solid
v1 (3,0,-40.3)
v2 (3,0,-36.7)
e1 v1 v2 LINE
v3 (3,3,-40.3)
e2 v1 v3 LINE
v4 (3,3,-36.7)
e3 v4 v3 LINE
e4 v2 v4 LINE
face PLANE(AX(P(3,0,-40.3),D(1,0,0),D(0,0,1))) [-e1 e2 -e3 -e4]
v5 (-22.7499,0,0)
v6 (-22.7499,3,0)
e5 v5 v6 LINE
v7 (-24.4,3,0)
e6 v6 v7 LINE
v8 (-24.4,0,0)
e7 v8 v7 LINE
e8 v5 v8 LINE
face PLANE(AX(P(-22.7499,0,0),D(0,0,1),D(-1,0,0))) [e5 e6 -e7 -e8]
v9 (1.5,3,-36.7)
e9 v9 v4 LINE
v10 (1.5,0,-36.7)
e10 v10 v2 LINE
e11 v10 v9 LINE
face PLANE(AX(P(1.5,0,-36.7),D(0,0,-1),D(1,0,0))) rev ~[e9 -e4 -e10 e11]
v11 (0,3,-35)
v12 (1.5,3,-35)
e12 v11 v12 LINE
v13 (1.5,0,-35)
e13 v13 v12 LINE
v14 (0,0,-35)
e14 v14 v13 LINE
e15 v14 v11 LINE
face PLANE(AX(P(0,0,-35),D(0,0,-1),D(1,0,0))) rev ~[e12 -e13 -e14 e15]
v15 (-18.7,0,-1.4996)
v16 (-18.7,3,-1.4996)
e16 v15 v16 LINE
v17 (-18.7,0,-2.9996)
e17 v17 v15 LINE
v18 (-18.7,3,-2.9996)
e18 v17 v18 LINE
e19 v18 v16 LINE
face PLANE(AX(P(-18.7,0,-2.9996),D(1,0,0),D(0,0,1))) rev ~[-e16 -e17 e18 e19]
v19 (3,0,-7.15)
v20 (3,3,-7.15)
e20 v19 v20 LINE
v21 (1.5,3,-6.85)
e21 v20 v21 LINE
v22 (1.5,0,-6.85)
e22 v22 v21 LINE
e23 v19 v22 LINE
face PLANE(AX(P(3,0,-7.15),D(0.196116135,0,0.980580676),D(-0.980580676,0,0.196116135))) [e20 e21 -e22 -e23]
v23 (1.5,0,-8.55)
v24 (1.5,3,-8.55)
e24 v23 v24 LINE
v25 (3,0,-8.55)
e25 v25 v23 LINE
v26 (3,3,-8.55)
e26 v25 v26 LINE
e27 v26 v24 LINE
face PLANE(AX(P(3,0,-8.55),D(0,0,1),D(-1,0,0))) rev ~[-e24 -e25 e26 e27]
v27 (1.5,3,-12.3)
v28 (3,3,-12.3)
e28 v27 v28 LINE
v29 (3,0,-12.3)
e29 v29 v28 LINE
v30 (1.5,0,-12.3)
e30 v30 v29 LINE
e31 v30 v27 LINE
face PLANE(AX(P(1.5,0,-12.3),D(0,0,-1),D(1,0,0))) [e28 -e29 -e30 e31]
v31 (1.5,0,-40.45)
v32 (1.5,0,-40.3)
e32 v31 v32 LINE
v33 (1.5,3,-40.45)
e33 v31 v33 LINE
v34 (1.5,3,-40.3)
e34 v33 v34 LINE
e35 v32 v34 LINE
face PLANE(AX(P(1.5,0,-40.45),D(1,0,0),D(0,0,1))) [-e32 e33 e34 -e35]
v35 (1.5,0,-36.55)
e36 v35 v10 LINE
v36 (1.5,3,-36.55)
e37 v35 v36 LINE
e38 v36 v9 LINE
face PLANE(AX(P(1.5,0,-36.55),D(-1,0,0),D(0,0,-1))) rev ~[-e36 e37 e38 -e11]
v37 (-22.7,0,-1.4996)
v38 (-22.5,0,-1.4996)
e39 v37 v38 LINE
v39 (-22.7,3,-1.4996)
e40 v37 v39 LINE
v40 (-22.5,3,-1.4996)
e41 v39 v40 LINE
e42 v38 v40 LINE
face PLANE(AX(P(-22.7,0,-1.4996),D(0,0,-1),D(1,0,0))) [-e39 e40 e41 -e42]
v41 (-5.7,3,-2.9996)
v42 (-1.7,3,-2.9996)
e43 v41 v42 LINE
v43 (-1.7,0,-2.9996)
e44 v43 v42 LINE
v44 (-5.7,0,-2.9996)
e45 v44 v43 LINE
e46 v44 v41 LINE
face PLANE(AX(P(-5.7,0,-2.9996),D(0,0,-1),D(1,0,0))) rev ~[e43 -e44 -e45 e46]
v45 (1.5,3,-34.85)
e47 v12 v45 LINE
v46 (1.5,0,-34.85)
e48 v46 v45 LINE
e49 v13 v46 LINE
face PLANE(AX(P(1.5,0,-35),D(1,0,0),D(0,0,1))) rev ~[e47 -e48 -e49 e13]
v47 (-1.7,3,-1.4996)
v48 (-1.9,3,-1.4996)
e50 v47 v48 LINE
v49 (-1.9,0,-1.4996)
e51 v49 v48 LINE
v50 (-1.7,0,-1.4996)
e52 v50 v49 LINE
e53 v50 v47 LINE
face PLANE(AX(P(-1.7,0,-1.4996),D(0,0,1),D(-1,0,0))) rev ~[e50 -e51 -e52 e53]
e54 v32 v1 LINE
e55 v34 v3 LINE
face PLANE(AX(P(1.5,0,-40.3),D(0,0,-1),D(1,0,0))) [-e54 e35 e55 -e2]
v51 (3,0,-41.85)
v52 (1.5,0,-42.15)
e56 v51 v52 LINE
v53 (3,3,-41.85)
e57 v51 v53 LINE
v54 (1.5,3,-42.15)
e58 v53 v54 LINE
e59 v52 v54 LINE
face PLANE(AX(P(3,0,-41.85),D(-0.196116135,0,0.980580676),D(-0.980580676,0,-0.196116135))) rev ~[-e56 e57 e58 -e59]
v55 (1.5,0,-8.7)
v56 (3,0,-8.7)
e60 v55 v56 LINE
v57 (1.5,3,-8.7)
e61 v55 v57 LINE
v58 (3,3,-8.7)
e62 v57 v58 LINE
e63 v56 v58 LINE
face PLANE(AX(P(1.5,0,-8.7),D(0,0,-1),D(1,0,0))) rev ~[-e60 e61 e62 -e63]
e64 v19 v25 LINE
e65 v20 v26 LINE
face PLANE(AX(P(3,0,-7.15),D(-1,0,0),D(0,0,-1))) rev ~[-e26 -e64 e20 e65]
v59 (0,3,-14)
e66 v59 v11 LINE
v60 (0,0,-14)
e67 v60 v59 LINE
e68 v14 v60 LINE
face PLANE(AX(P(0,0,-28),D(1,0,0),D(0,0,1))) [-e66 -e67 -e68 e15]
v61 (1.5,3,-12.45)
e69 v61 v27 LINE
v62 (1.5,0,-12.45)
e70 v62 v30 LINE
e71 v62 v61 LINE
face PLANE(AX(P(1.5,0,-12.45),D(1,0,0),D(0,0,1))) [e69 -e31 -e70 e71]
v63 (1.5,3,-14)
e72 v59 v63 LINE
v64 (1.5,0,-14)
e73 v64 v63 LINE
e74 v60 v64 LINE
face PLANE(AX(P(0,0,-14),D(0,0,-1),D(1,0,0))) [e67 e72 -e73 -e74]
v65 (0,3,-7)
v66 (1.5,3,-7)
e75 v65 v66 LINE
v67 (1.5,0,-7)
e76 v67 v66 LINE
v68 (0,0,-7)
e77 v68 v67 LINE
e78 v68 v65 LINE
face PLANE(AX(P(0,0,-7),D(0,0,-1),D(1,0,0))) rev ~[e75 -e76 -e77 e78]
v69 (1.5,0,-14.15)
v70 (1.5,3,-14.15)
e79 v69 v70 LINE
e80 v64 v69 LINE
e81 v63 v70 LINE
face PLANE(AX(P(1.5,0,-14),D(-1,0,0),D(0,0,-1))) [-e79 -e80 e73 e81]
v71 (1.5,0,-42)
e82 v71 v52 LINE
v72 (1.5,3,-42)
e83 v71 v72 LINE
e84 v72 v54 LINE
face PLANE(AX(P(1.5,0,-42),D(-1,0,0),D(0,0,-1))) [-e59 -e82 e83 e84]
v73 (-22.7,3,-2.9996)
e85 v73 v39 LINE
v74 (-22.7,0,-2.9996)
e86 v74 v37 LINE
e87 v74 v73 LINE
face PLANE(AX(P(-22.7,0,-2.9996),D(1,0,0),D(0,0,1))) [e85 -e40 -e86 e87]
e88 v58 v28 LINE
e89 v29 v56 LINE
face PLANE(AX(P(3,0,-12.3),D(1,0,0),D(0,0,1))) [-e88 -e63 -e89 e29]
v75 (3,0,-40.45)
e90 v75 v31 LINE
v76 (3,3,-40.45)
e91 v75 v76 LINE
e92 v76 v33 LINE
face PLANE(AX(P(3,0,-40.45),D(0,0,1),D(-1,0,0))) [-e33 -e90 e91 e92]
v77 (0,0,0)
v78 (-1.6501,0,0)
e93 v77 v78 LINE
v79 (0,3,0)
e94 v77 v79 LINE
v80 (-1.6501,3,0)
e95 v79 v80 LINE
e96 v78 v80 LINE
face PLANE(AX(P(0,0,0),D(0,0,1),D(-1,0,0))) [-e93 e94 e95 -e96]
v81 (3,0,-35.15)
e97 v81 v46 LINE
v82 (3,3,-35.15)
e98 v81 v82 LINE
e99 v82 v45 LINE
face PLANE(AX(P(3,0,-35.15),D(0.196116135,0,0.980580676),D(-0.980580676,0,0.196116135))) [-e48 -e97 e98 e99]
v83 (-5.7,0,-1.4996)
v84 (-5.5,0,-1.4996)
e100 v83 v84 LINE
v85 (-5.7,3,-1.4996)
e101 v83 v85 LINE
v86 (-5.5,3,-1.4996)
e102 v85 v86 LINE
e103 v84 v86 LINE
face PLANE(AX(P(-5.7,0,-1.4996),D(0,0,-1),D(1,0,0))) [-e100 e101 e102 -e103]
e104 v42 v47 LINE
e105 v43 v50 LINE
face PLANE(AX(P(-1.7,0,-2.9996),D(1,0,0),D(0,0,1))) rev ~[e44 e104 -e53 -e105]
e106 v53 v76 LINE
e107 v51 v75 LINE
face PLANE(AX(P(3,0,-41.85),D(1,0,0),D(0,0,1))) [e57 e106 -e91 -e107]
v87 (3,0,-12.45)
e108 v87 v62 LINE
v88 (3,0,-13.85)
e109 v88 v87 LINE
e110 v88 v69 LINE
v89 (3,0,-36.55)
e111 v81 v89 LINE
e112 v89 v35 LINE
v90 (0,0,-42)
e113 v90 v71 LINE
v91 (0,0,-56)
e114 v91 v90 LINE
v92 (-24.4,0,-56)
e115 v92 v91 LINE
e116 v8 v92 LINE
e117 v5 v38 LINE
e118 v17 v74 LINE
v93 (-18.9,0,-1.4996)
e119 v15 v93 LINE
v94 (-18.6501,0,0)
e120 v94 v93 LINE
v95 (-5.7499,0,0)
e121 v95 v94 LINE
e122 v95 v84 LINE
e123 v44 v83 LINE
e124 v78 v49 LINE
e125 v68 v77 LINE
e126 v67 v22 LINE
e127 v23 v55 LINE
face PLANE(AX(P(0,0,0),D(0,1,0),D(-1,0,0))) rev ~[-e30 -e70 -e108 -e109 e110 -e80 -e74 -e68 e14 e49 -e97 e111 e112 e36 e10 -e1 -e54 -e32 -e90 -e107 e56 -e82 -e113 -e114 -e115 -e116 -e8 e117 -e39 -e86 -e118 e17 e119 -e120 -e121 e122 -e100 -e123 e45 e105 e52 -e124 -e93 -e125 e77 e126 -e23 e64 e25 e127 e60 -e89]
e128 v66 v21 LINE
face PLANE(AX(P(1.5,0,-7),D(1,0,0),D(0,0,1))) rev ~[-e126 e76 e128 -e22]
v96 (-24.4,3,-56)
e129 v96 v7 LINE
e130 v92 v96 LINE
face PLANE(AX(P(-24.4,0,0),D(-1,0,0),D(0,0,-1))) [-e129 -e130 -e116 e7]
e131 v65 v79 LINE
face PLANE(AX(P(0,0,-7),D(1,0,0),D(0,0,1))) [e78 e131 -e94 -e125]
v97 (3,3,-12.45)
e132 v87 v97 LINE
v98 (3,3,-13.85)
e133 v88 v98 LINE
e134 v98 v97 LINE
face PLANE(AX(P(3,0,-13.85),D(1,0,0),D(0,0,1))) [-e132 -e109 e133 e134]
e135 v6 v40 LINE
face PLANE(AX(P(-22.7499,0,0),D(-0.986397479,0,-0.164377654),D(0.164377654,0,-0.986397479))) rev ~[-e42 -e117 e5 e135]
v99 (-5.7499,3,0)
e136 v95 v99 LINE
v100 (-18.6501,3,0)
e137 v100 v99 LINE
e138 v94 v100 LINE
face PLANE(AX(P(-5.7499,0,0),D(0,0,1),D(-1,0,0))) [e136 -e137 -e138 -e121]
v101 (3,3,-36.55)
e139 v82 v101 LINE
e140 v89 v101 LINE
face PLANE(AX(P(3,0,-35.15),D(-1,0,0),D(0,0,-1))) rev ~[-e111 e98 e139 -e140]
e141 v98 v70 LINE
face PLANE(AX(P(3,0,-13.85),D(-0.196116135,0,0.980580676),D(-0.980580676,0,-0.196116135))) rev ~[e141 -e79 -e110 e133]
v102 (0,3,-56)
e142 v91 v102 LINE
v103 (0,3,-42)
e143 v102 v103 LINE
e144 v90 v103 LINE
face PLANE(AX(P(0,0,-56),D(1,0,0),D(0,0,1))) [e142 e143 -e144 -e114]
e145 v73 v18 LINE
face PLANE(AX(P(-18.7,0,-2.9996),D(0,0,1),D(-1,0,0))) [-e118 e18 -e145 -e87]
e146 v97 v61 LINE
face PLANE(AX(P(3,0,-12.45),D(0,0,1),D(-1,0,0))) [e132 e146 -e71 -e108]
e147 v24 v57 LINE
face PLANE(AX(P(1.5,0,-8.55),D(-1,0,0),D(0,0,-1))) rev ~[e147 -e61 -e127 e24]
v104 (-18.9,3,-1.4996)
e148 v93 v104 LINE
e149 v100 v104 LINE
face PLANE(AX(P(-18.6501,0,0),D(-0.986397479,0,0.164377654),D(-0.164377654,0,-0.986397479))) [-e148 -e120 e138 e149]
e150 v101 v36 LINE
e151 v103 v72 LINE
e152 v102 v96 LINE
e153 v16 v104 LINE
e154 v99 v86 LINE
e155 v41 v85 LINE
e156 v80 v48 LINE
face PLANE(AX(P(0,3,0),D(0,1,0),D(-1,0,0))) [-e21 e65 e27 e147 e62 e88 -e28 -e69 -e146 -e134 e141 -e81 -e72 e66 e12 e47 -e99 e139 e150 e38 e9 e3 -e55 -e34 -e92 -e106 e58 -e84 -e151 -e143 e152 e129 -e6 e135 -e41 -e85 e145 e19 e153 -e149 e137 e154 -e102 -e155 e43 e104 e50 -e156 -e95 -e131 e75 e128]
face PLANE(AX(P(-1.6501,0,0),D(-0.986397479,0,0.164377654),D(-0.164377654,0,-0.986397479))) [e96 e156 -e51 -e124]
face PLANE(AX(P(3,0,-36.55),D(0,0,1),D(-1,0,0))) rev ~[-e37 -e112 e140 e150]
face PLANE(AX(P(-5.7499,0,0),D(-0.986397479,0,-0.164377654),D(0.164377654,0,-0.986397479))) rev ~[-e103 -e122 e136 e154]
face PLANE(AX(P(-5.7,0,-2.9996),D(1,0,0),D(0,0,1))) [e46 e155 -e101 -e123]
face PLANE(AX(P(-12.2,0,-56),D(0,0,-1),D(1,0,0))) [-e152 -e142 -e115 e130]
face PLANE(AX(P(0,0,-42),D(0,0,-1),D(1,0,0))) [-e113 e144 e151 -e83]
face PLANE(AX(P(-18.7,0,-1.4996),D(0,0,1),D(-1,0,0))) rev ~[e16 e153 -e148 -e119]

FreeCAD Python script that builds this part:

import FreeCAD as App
import Part
import Sketcher
from FreeCAD import Vector
Q = App.Units.Quantity


def add_polygon(sketch, points):
    """Adds a closed chain of lines whose ends are joined by coincident constraints."""
    first, n = sketch.GeometryCount, len(points)
    for a, b in zip(points, points[1:] + points[:1]):
        sketch.addGeometry(Part.LineSegment(App.Vector(*a, 0), App.Vector(*b, 0)), False)
    for i in range(n):
        sketch.addConstraint(Sketcher.Constraint("Coincident", first + i, 2, first + (i + 1) % n, 1))

doc = App.newDocument("Part")
body = doc.addObject("PartDesign::Body", "Body")

sketch1 = body.newObject("Sketcher::SketchObject", "Sketch")
sketch1.AttachmentSupport = (doc.getObject("XZ_Plane"), [""])
sketch1.MapMode = "FlatFace"
add_polygon(sketch1, [(-1.65, 0), (0, 0), (0, -7), (1.5, -7), (1.5, -6.85), (3, -7.15), (3, -8.55), (1.5, -8.55), (1.5, -8.7), (3, -8.7), (3, -12.3), (1.5, -12.3), (1.5, -12.45), (3, -12.45), (3, -13.85), (1.5, -14.15), (1.5, -14), (0, -14), (0, -35), (1.5, -35), (1.5, -34.85), (3, -35.15), (3, -36.55), (1.5, -36.55), (1.5, -36.7), (3, -36.7), (3, -40.3), (1.5, -40.3), (1.5, -40.45), (3, -40.45), (3, -41.85), (1.5, -42.15), (1.5, -42), (0, -42), (0, -56), (-24.4, -56), (-24.4, 0), (-22.75, 0), (-22.5, -1.5), (-22.7, -1.5), (-22.7, -3), (-18.7, -3), (-18.7, -1.5), (-18.9, -1.5), (-18.65, 0), (-5.75, 0), (-5.5, -1.5), (-5.7, -1.5), (-5.7, -3), (-1.7, -3), (-1.7, -1.5), (-1.9, -1.5)])
sketch1.addConstraint(Sketcher.Constraint("Horizontal", 0))
sketch1.addConstraint(Sketcher.Constraint("Vertical", 1))
sketch1.addConstraint(Sketcher.Constraint("Horizontal", 2))
sketch1.addConstraint(Sketcher.Constraint("Vertical", 3))
sketch1.addConstraint(Sketcher.Constraint("Vertical", 5))
sketch1.addConstraint(Sketcher.Constraint("Horizontal", 6))
sketch1.addConstraint(Sketcher.Constraint("Vertical", 7))
sketch1.addConstraint(Sketcher.Constraint("Horizontal", 8))
sketch1.addConstraint(Sketcher.Constraint("Vertical", 9))
sketch1.addConstraint(Sketcher.Constraint("Horizontal", 10))
sketch1.addConstraint(Sketcher.Constraint("Vertical", 11))
sketch1.addConstraint(Sketcher.Constraint("Horizontal", 12))
sketch1.addConstraint(Sketcher.Constraint("Vertical", 13))
sketch1.addConstraint(Sketcher.Constraint("Vertical", 15))
sketch1.addConstraint(Sketcher.Constraint("Horizontal", 16))
sketch1.addConstraint(Sketcher.Constraint("Vertical", 17))
sketch1.addConstraint(Sketcher.Constraint("Horizontal", 18))
sketch1.addConstraint(Sketcher.Constraint("Vertical", 19))
sketch1.addConstraint(Sketcher.Constraint("Vertical", 21))
sketch1.addConstraint(Sketcher.Constraint("Horizontal", 22))
sketch1.addConstraint(Sketcher.Constraint("Vertical", 23))
sketch1.addConstraint(Sketcher.Constraint("Horizontal", 24))
sketch1.addConstraint(Sketcher.Constraint("Vertical", 25))
sketch1.addConstraint(Sketcher.Constraint("Horizontal", 26))
sketch1.addConstraint(Sketcher.Constraint("Vertical", 27))
sketch1.addConstraint(Sketcher.Constraint("Horizontal", 28))
sketch1.addConstraint(Sketcher.Constraint("Vertical", 29))
sketch1.addConstraint(Sketcher.Constraint("Vertical", 31))
sketch1.addConstraint(Sketcher.Constraint("Horizontal", 32))
sketch1.addConstraint(Sketcher.Constraint("Vertical", 33))
sketch1.addConstraint(Sketcher.Constraint("Horizontal", 34))
sketch1.addConstraint(Sketcher.Constraint("Vertical", 35))
sketch1.addConstraint(Sketcher.Constraint("Horizontal", 36))
sketch1.addConstraint(Sketcher.Constraint("Horizontal", 38))
sketch1.addConstraint(Sketcher.Constraint("Vertical", 39))
sketch1.addConstraint(Sketcher.Constraint("Horizontal", 40))
sketch1.addConstraint(Sketcher.Constraint("Vertical", 41))
sketch1.addConstraint(Sketcher.Constraint("Horizontal", 42))
sketch1.addConstraint(Sketcher.Constraint("Horizontal", 44))
sketch1.addConstraint(Sketcher.Constraint("Horizontal", 46))
sketch1.addConstraint(Sketcher.Constraint("Vertical", 47))
sketch1.addConstraint(Sketcher.Constraint("Horizontal", 48))
sketch1.addConstraint(Sketcher.Constraint("Vertical", 49))
sketch1.addConstraint(Sketcher.Constraint("Horizontal", 50))
sketch1.addConstraint(Sketcher.Constraint("Coincident", 0, 2, -1, 1))
sketch1.addConstraint(Sketcher.Constraint("PointOnObject", 16, 2, -2))
sketch1.addConstraint(Sketcher.Constraint("PointOnObject", 32, 2, -2))
sketch1.addConstraint(Sketcher.Constraint("PointOnObject", 35, 2, -1))
sketch1.addConstraint(Sketcher.Constraint("PointOnObject", 43, 2, -1))
sketch1.addConstraint(Sketcher.Constraint("Parallel", 4, 20))
sketch1.addConstraint(Sketcher.Constraint("Parallel", 14, 30))
sketch1.addConstraint(Sketcher.Constraint("Parallel", 37, 45))
sketch1.addConstraint(Sketcher.Constraint("Parallel", 43, 51))
sketch1.addConstraint(Sketcher.Constraint("Horizontal", 38, 2, 41, 2))
sketch1.addConstraint(Sketcher.Constraint("Horizontal", 42, 2, 45, 2))
sketch1.addConstraint(Sketcher.Constraint("Horizontal", 40, 2, 47, 2))
sketch1.addConstraint(Sketcher.Constraint("Horizontal", 46, 2, 49, 2))
sketch1.addConstraint(Sketcher.Constraint("Vertical", 3, 2, 6, 2))
sketch1.addConstraint(Sketcher.Constraint("Vertical", 5, 2, 8, 2))
sketch1.addConstraint(Sketcher.Constraint("Vertical", 7, 2, 10, 2))
sketch1.addConstraint(Sketcher.Constraint("Vertical", 9, 2, 12, 2))
sketch1.addConstraint(Sketcher.Constraint("Vertical", 11, 2, 14, 2))
sketch1.addConstraint(Sketcher.Constraint("Vertical", 15, 2, 18, 2))
sketch1.addConstraint(Sketcher.Constraint("Vertical", 13, 2, 20, 2))
sketch1.addConstraint(Sketcher.Constraint("Vertical", 19, 2, 22, 2))
sketch1.addConstraint(Sketcher.Constraint("Vertical", 21, 2, 24, 2))
sketch1.addConstraint(Sketcher.Constraint("Vertical", 23, 2, 26, 2))
sketch1.addConstraint(Sketcher.Constraint("Vertical", 25, 2, 28, 2))
sketch1.addConstraint(Sketcher.Constraint("Vertical", 27, 2, 30, 2))
sketch1.addConstraint(Sketcher.Constraint("Equal", 2, 6))
sketch1.addConstraint(Sketcher.Constraint("Equal", 0, 36))
sketch1.addConstraint(Sketcher.Constraint("Equal", 38, 42))
sketch1.addConstraint(Sketcher.Constraint("Equal", 42, 46))
sketch1.addConstraint(Sketcher.Constraint("Equal", 40, 48))
sketch1.addConstraint(Sketcher.Constraint("Equal", 46, 50))
sketch1.addConstraint(Sketcher.Constraint("Equal", 3, 7))
sketch1.addConstraint(Sketcher.Constraint("Equal", 7, 11))
sketch1.addConstraint(Sketcher.Constraint("Equal", 5, 13))
sketch1.addConstraint(Sketcher.Constraint("Equal", 11, 15))
sketch1.addConstraint(Sketcher.Constraint("Equal", 15, 19))
sketch1.addConstraint(Sketcher.Constraint("Equal", 13, 21))
sketch1.addConstraint(Sketcher.Constraint("Equal", 19, 23))
sketch1.addConstraint(Sketcher.Constraint("Equal", 9, 25))
sketch1.addConstraint(Sketcher.Constraint("Equal", 23, 27))
sketch1.addConstraint(Sketcher.Constraint("Equal", 21, 29))
sketch1.addConstraint(Sketcher.Constraint("Equal", 27, 31))
sketch1.addConstraint(Sketcher.Constraint("Equal", 32, 39))
sketch1.addConstraint(Sketcher.Constraint("Equal", 4, 14))
sketch1.addConstraint(Sketcher.Constraint("Equal", 37, 43))
sketch1.addConstraint(Sketcher.Constraint("DistanceX", 40, 1, 40, 2, Q("4 mm")))
sketch1.addConstraint(Sketcher.Constraint("DistanceY", 1, 2, 1, 1, Q("7 mm")))
sketch1.addConstraint(Sketcher.Constraint("DistanceY", 35, 1, 35, 2, Q("56 mm")))
sketch1.addConstraint(Sketcher.Constraint("DistanceX", 2, 1, 2, 2, Q("1.5 mm")))
sketch1.addConstraint(Sketcher.Constraint("DistanceX", 34, 2, 34, 1, Q("24.4 mm")))
sketch1.addConstraint(Sketcher.Constraint("DistanceX", 38, 2, 38, 1, Q("0.2 mm")))
sketch1.addConstraint(Sketcher.Constraint("DistanceY", 5, 2, 5, 1, Q("1.4 mm")))
sketch1.addConstraint(Sketcher.Constraint("DistanceX", 45, 2, 3, 2, Q("7 mm")))
sketch1.addConstraint(Sketcher.Constraint("DistanceY", 3, 1, 3, 2, Q("0.15 mm")))
sketch1.addConstraint(Sketcher.Constraint("DistanceY", 5, 2, 3, 2, Q("1.7 mm")))
sketch1.addConstraint(Sketcher.Constraint("DistanceY", 17, 2, 17, 1, Q("21 mm")))
sketch1.addConstraint(Sketcher.Constraint("DistanceY", 33, 2, 33, 1, Q("14 mm")))
sketch1.addConstraint(Sketcher.Constraint("DistanceX", 0, 1, 0, 2, Q("1.65 mm")))
sketch1.addConstraint(Sketcher.Constraint("DistanceY", 37, 2, -1, 1, Q("1.4996 mm")))
pad1 = body.newObject("PartDesign::Pad", "Pad")
pad1.Profile = sketch1
pad1.Length = 3
pad1.Reversed = True

doc.recompute()
